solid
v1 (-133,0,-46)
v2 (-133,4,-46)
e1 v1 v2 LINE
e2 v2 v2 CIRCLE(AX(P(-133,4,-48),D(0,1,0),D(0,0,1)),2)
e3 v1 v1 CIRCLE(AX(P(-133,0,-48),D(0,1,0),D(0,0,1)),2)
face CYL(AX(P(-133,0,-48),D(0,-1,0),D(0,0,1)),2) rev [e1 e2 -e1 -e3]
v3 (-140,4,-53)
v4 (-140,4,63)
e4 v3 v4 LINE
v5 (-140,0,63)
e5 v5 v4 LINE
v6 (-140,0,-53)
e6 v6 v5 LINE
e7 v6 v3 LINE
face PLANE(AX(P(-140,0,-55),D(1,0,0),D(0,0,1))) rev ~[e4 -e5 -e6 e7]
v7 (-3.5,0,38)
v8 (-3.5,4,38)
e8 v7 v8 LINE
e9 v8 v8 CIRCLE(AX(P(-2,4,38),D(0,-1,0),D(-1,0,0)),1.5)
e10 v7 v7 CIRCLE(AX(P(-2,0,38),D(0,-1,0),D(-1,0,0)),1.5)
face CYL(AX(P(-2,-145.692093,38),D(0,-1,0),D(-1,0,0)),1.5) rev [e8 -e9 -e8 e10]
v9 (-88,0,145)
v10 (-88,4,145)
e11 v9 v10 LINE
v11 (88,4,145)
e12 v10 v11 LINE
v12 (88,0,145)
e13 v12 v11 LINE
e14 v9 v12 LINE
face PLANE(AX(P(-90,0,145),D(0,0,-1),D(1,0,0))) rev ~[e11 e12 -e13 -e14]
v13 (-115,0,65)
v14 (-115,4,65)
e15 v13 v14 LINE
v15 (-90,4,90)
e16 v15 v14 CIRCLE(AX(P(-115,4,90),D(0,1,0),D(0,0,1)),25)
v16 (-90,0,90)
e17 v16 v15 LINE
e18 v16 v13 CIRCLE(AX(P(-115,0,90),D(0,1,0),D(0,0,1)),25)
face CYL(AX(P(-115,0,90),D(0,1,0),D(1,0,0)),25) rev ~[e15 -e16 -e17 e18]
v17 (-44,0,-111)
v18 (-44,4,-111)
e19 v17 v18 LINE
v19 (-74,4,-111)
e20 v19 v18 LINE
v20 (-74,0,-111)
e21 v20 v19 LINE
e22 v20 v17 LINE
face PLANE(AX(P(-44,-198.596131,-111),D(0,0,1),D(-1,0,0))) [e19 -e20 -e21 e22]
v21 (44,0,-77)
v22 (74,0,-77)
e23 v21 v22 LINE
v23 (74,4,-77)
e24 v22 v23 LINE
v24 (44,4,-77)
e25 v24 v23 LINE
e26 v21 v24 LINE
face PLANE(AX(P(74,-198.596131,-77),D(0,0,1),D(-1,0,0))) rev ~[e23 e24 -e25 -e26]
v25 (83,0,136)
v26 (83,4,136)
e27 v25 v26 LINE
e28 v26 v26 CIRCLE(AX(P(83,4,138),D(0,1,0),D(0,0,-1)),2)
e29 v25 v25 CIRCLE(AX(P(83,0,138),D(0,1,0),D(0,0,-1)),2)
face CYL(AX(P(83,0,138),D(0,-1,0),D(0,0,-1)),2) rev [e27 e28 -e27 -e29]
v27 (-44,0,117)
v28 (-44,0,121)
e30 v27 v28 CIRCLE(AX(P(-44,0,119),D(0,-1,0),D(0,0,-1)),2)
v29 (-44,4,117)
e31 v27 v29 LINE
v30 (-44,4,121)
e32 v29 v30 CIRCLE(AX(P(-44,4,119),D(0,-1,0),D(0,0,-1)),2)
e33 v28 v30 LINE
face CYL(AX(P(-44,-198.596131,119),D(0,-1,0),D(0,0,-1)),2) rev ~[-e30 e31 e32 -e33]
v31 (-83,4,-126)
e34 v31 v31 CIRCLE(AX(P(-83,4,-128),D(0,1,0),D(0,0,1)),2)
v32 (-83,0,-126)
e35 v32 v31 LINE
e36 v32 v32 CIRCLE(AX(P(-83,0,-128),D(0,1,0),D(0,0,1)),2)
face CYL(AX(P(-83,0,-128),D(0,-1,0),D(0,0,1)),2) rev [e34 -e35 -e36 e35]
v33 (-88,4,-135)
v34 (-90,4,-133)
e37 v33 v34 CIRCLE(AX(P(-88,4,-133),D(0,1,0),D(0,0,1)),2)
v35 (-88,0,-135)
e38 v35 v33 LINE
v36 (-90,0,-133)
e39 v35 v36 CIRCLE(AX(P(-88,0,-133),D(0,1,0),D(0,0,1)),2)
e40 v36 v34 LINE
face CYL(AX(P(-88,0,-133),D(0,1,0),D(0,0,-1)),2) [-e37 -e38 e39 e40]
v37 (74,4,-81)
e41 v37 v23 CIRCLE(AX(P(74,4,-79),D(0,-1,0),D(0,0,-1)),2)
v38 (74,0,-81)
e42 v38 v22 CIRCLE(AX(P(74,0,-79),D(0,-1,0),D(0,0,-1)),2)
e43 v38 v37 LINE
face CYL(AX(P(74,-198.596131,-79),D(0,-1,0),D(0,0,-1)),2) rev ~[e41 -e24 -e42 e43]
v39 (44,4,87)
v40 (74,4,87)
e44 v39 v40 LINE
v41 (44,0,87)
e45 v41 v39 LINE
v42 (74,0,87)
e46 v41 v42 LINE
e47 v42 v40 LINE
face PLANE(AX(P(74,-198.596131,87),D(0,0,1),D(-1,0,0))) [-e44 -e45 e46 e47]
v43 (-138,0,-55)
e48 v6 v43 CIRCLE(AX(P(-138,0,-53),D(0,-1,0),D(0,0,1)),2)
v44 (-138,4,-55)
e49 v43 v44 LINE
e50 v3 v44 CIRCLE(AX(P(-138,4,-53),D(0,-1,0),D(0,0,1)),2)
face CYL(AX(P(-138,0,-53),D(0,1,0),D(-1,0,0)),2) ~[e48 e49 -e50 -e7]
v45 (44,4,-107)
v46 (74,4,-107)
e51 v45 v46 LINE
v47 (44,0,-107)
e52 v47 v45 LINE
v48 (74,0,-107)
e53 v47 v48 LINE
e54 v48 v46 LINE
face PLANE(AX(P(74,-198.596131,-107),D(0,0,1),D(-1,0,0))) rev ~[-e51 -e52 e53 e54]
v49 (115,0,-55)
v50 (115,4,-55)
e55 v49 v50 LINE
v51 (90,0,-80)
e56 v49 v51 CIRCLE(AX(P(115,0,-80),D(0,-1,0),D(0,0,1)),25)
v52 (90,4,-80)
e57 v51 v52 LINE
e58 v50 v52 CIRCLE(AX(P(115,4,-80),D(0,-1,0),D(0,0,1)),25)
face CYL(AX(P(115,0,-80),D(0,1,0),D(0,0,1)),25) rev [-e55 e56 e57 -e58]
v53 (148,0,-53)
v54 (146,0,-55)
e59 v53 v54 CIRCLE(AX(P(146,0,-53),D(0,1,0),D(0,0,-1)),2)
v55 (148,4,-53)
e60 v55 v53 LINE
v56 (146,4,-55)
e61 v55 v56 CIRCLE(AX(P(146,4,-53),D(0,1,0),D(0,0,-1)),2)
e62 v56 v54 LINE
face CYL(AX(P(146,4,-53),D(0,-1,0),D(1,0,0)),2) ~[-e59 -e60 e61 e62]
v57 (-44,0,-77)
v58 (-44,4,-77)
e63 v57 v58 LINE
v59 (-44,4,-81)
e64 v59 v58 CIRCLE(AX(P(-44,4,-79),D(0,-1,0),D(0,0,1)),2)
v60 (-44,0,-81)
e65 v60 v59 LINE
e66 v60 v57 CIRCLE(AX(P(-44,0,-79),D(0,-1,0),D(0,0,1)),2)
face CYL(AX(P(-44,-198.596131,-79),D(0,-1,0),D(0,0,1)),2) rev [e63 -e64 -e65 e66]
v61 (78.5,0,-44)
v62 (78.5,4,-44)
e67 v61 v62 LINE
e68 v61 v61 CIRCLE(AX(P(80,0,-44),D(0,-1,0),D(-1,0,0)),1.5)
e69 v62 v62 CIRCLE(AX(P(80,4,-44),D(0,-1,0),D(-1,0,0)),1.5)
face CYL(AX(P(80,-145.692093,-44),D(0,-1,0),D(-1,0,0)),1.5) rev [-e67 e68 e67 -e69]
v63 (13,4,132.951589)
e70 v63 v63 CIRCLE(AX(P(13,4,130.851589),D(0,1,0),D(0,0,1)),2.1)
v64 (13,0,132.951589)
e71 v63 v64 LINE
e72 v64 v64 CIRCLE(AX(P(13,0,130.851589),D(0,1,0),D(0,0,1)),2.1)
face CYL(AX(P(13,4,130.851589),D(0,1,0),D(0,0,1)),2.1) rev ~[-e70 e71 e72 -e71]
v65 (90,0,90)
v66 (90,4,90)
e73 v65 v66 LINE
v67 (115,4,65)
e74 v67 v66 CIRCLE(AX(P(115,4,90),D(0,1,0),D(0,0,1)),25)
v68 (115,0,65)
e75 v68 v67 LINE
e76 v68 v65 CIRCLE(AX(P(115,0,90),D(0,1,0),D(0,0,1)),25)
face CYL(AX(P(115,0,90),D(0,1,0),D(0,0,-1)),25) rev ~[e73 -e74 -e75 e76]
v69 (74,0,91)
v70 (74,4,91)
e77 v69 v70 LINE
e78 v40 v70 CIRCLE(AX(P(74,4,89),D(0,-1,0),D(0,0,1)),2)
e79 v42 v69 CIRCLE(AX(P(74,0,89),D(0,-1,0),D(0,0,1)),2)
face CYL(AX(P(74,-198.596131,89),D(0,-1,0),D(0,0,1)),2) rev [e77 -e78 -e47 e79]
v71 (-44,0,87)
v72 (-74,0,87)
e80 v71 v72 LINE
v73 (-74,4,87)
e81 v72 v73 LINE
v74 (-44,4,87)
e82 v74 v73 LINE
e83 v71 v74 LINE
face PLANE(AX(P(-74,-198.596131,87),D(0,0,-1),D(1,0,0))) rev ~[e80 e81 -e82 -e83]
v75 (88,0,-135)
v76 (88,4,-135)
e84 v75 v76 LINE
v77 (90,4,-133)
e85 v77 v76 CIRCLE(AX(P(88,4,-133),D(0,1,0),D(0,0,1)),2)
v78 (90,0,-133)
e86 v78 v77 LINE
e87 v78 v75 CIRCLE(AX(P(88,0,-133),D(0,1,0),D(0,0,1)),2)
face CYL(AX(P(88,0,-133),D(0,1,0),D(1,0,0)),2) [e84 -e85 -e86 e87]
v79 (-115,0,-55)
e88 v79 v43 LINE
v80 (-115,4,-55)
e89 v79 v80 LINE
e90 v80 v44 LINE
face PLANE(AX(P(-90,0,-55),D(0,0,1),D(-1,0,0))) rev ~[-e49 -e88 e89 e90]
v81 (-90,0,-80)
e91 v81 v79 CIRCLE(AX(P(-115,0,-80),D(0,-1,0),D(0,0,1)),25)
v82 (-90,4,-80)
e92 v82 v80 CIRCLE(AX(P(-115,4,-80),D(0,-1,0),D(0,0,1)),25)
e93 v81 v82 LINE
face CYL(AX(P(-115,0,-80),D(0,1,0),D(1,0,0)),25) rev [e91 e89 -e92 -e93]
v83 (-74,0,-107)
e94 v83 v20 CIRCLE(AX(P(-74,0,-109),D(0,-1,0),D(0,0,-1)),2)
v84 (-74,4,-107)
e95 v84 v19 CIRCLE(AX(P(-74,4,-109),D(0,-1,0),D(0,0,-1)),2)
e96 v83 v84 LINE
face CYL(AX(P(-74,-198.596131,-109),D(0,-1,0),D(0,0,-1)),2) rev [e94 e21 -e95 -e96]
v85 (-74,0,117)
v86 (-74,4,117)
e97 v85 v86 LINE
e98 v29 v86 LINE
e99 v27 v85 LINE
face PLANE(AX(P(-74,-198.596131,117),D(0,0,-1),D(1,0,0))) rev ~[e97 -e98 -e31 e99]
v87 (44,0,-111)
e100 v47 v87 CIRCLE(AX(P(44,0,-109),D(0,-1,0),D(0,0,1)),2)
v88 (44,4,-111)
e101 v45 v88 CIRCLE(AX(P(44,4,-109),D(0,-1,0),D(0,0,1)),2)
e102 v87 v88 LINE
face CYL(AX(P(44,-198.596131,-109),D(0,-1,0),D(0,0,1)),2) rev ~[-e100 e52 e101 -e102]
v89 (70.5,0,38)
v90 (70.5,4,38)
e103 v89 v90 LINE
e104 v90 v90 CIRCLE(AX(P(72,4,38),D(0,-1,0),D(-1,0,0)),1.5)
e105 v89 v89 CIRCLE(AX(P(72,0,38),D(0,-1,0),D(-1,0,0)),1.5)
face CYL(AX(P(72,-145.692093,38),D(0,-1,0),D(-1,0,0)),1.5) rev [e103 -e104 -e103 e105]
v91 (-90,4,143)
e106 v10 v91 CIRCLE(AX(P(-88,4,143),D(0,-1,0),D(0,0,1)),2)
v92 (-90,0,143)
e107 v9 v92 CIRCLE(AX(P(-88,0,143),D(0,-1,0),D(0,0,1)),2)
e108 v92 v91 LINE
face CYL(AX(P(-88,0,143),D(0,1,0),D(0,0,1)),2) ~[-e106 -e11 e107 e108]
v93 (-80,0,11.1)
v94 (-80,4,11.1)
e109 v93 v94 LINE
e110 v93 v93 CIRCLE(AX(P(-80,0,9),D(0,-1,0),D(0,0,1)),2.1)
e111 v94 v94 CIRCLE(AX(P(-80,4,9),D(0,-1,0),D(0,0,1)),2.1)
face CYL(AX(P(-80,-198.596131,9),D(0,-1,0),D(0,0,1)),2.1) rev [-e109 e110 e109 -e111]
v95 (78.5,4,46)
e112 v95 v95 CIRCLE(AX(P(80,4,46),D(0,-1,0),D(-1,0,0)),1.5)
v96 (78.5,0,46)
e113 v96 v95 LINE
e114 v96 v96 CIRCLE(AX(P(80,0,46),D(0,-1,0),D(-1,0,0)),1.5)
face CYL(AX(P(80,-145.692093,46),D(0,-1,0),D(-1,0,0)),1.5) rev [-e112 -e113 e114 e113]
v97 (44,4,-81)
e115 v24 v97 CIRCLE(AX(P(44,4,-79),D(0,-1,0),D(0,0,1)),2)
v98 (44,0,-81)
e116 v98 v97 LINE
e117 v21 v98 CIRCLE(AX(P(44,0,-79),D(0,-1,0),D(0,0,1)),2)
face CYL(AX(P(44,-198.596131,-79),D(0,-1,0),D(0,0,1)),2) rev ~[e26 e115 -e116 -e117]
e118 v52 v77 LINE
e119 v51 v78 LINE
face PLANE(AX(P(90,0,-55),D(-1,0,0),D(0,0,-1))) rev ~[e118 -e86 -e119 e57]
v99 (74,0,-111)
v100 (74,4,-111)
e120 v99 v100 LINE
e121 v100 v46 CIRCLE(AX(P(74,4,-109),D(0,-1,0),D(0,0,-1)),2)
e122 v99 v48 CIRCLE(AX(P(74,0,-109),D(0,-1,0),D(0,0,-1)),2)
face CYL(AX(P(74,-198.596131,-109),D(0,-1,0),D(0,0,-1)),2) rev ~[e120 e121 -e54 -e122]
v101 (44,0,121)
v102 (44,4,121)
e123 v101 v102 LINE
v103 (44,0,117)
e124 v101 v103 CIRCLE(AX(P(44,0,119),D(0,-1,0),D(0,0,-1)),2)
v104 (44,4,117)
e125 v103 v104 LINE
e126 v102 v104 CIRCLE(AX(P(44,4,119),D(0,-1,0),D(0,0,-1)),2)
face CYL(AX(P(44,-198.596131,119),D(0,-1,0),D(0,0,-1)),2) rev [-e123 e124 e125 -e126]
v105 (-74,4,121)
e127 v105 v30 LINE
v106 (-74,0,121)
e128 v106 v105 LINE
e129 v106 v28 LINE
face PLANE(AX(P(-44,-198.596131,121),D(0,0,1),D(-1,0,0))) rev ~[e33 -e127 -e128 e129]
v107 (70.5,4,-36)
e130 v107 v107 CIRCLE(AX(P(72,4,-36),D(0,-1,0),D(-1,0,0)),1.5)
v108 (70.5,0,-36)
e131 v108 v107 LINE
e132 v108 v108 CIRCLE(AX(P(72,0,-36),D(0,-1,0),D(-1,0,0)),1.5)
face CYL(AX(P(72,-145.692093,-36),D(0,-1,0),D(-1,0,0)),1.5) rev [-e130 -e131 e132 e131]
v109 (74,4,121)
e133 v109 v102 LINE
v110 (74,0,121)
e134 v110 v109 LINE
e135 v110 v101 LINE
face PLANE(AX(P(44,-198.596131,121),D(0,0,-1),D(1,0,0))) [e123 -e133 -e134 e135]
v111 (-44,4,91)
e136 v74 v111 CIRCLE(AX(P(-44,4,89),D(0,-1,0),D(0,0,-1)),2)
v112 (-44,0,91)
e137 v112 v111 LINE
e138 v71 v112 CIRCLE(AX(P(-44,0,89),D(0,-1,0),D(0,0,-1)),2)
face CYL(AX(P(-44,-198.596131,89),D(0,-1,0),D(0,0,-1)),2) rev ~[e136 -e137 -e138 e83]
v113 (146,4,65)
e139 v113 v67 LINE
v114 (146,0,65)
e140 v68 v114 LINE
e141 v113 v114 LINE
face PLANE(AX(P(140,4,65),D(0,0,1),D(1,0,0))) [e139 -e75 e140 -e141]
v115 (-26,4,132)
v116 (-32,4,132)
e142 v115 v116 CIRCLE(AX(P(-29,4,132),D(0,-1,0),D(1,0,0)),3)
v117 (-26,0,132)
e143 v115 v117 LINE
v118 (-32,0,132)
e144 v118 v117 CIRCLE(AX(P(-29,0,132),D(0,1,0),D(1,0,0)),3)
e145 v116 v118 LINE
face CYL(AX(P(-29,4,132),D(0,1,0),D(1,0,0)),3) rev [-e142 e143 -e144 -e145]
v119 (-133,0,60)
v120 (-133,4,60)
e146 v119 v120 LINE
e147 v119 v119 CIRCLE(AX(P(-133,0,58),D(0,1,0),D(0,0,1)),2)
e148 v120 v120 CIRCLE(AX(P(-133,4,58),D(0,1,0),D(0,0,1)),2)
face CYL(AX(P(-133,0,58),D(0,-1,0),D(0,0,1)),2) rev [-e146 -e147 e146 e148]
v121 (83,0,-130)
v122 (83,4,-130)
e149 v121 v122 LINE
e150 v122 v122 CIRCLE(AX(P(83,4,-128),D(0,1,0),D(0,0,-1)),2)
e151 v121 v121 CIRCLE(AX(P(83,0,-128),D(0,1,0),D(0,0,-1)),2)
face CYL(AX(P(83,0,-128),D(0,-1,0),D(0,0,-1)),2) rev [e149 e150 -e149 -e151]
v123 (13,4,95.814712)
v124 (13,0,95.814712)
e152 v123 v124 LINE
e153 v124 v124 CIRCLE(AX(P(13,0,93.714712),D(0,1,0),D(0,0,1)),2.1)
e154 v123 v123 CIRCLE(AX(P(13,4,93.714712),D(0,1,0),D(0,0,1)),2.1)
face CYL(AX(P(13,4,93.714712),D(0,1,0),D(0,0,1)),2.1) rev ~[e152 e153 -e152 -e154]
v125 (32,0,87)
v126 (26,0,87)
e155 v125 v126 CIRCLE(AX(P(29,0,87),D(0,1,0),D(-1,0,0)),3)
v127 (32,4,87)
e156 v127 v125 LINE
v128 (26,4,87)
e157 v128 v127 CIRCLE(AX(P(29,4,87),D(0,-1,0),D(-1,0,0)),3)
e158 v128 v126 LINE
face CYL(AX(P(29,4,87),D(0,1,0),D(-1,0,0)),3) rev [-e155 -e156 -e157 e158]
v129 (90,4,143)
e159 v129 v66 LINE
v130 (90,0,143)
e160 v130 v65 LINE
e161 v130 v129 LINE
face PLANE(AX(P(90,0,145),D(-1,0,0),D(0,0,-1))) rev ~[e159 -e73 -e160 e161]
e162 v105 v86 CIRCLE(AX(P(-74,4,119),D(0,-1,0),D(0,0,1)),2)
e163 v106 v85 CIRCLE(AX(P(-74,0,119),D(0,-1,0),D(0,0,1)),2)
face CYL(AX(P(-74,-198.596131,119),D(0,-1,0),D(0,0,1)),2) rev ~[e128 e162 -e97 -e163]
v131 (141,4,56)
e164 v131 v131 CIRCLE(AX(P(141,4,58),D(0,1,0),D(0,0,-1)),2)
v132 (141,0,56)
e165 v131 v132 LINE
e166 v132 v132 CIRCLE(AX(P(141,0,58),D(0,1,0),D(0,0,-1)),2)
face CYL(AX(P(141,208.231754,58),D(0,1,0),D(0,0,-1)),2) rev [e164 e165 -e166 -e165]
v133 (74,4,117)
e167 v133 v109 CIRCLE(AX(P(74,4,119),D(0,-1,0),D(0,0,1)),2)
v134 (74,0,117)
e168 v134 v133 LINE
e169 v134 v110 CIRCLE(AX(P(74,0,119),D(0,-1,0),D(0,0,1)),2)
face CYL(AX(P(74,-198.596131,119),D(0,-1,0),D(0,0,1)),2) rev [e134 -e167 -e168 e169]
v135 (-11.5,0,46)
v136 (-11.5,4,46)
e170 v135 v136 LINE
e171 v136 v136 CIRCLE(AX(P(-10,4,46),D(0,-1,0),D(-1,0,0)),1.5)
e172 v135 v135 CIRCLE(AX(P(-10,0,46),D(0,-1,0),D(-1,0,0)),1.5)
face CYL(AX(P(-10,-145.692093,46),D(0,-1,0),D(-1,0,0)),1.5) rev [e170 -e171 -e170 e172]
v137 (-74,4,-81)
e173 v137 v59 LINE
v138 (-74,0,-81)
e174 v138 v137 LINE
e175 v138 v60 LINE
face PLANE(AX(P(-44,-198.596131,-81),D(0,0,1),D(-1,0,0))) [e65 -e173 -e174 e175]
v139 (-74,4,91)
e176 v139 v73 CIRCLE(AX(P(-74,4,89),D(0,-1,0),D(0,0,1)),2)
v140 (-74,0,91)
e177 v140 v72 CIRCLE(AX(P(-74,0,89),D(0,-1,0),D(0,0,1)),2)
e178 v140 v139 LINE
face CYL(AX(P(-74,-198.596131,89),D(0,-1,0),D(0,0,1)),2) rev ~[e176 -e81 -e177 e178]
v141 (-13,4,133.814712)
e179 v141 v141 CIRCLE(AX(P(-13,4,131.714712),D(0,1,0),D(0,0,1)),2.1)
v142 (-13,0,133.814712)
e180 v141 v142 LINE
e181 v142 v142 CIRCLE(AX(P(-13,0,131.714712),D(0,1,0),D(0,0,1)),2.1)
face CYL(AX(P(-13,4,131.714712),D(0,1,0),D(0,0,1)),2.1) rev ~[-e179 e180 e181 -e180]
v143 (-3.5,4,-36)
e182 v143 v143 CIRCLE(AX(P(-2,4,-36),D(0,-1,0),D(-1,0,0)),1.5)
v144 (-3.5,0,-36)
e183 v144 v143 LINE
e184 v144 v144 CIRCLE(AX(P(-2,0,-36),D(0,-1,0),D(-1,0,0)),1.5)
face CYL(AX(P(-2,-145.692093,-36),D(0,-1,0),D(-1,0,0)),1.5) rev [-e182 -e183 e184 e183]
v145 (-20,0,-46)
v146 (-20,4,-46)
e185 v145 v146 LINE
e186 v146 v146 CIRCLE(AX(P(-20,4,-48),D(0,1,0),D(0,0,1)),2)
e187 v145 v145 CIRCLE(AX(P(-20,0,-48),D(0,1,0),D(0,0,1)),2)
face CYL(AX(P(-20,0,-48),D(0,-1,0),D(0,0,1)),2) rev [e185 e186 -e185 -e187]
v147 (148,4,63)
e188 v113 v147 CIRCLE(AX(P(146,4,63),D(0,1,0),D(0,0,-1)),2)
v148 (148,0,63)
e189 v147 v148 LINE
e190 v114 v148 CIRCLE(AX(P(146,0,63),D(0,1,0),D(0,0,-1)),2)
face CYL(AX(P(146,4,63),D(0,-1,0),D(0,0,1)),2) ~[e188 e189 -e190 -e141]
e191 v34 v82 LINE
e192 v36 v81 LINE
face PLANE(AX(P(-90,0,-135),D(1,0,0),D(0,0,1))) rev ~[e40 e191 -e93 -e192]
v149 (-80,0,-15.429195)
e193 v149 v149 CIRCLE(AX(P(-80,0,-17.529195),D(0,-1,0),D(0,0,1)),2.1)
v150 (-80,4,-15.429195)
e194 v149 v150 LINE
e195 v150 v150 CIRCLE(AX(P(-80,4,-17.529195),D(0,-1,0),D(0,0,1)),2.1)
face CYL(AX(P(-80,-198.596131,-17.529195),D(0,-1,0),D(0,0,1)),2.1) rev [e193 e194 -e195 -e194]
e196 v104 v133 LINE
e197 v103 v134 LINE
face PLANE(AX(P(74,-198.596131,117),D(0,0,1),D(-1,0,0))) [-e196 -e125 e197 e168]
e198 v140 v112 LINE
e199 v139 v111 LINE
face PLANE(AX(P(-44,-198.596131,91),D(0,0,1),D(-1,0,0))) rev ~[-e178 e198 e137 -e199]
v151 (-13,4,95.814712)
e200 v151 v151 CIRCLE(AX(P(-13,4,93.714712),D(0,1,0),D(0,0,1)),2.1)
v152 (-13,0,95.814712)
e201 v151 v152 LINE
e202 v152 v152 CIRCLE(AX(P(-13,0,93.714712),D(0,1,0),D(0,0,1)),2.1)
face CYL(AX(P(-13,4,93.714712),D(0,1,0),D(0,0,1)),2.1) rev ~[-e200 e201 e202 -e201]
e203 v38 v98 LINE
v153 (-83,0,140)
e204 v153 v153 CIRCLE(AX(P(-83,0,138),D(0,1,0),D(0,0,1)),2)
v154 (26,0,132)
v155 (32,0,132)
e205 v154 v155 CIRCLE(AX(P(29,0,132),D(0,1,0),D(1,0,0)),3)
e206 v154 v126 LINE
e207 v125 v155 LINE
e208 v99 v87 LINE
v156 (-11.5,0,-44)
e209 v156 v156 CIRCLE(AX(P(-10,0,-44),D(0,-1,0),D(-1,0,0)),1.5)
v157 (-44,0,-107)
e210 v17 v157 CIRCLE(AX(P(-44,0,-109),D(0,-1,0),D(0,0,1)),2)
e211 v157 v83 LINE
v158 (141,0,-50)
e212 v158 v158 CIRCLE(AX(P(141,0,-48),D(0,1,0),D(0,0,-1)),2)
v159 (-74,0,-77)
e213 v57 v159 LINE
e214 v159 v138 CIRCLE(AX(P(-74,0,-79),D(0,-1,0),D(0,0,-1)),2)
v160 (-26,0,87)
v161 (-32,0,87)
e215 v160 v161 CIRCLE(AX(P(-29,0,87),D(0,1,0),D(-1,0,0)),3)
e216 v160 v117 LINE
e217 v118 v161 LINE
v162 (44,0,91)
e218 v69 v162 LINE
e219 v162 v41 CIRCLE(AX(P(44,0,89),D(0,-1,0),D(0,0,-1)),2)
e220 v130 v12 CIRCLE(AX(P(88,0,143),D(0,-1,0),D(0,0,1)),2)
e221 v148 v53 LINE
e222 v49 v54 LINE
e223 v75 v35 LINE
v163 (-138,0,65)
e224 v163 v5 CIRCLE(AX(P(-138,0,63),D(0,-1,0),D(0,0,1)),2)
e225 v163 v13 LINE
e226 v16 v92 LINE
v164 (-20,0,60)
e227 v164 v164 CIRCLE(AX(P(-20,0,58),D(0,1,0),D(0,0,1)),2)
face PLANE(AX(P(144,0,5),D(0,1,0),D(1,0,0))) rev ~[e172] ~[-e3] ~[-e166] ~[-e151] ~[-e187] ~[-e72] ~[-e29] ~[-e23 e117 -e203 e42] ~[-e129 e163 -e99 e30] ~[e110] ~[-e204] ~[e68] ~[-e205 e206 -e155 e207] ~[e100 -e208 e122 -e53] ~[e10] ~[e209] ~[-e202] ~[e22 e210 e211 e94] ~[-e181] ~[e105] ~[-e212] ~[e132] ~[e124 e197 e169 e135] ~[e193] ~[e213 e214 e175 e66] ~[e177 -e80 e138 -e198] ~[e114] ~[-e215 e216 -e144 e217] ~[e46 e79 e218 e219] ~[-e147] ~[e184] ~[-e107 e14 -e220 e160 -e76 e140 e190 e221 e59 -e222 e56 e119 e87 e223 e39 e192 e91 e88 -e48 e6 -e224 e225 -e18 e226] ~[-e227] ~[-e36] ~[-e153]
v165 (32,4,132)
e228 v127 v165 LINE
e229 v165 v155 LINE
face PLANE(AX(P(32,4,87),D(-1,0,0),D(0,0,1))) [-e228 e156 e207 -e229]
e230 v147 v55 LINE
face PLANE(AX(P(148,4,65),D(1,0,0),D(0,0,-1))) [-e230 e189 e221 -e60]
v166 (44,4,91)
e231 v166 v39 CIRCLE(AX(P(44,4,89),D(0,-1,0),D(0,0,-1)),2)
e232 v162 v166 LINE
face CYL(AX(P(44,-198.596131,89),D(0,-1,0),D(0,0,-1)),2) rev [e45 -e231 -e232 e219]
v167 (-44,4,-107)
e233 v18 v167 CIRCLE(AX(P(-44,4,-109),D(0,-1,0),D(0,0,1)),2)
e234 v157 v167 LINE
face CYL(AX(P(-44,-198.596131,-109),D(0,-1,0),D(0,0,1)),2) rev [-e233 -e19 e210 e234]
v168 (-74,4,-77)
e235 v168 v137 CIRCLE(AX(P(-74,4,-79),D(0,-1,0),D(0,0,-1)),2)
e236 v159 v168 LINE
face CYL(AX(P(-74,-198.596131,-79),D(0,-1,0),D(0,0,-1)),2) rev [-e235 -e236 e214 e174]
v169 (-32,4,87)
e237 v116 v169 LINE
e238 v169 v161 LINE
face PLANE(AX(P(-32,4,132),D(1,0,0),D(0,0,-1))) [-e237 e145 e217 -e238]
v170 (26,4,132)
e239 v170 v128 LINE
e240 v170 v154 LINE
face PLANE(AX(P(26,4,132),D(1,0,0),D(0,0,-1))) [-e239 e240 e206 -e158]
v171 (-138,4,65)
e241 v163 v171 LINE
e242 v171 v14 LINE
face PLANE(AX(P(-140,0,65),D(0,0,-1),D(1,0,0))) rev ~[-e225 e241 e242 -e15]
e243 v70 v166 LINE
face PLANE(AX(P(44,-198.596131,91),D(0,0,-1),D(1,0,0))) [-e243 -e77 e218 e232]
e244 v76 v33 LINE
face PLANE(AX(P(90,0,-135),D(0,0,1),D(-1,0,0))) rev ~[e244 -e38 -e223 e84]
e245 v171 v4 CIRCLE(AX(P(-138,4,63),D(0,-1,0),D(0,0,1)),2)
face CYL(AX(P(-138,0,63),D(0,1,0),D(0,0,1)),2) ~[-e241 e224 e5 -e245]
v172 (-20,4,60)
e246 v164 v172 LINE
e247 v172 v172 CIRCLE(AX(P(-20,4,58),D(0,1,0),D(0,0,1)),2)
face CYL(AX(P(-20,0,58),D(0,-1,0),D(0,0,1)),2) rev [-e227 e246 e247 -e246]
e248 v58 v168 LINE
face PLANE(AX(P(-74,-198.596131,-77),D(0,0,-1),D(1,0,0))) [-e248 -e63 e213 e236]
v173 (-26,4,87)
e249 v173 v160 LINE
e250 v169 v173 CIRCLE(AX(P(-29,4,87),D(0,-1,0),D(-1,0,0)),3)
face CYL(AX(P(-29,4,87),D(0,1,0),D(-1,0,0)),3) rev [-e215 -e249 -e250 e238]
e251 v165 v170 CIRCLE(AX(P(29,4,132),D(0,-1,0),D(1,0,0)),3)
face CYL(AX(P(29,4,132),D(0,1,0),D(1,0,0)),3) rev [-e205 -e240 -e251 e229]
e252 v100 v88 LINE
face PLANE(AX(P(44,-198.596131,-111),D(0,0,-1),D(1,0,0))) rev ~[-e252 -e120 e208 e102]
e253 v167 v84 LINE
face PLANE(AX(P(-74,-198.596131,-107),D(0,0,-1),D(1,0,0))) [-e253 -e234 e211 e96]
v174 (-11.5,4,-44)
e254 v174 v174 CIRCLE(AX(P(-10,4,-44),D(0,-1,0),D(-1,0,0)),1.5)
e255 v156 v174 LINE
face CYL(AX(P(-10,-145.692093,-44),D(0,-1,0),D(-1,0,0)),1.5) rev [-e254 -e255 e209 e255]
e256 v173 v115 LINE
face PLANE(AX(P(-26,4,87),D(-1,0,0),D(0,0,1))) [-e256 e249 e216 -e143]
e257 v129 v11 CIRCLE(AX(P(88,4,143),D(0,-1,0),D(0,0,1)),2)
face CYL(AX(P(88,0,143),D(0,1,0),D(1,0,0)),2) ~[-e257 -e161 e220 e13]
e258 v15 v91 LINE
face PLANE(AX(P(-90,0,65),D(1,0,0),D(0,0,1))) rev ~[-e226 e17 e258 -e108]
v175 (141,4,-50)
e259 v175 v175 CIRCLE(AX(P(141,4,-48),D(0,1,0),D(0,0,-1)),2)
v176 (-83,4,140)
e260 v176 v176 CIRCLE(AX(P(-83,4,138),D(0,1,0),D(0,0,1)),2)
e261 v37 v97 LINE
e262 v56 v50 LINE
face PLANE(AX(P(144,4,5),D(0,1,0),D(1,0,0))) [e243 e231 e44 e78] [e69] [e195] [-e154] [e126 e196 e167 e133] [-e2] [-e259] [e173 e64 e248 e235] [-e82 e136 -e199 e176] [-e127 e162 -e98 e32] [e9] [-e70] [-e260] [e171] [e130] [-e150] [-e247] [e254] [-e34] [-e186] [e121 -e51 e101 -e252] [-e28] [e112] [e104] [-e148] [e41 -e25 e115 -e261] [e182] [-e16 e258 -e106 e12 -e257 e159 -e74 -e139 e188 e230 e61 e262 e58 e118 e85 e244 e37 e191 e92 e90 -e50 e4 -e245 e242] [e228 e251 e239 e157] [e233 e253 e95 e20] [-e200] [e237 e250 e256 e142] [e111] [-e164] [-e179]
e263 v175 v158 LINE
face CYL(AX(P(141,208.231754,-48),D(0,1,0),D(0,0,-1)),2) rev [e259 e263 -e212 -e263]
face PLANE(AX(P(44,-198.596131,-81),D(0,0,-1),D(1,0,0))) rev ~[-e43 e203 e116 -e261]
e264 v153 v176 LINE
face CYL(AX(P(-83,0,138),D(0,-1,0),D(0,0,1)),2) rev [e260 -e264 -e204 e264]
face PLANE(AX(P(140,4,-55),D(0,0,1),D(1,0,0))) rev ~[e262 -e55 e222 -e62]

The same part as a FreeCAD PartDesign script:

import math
import FreeCAD as App
import Part
import Sketcher
from FreeCAD import Vector


def edges_at(feature, points):
    """Names of the edges that pass closest to the given points."""
    edges = feature.Shape.Edges
    near = lambda p: min(range(len(edges)), key=lambda i: edges[i].distToShape(Part.Vertex(*p))[0])
    return sorted({f"Edge{near(p) + 1}" for p in points})


def add_polygon(sketch, points):
    """Adds a closed chain of lines whose ends are joined by coincident constraints."""
    first, n = sketch.GeometryCount, len(points)
    for a, b in zip(points, points[1:] + points[:1]):
        sketch.addGeometry(Part.LineSegment(App.Vector(*a, 0), App.Vector(*b, 0)), False)
    for i in range(n):
        sketch.addConstraint(Sketcher.Constraint("Coincident", first + i, 2, first + (i + 1) % n, 1))

doc = App.newDocument("Part")
body = doc.addObject("PartDesign::Body", "Body")

# Sketch on XZ plane
sketch1 = doc.addObject("Sketcher::SketchObject", "Sketch")
body.addObject(sketch1)
sketch1.AttachmentSupport = (doc.XZ_Plane, [""])
sketch1.MapMode = "FlatFace"
add_polygon(sketch1, [(-90, 145), (90, 145), (90, 65), (140, 65), (140, -55), (90, -55), (90, -135), (-90, -135), (-90, -55), (-140, -55), (-140, 65), (-90, 65)])  # lines 0-11
sketch1.addGeometry(Part.Circle(Vector(-83, 138, 0), Vector(0, 0, 1), 2), False)  # 12
sketch1.addGeometry(Part.Circle(Vector(-133, 58, 0), Vector(0, 0, 1), 2), False)  # 13
sketch1.addGeometry(Part.Circle(Vector(83, 138, 0), Vector(0, 0, 1), 2), False)  # 14
sketch1.addGeometry(Part.Circle(Vector(-20, 58, 0), Vector(0, 0, 1), 2), False)  # 15
sketch1.addGeometry(Part.Circle(Vector(-133, -48, 0), Vector(0, 0, 1), 2), False)  # 16
sketch1.addGeometry(Part.Circle(Vector(-83, -128, 0), Vector(0, 0, 1), 2), False)  # 17
sketch1.addGeometry(Part.Circle(Vector(-20, -48, 0), Vector(0, 0, 1), 2), False)  # 18
sketch1.addGeometry(Part.Circle(Vector(83, -128, 0), Vector(0, 0, 1), 2), False)  # 19
sketch1.addConstraint([
    Sketcher.Constraint("Horizontal", 0),
    Sketcher.Constraint("Vertical", 1),
    Sketcher.Constraint("Horizontal", 2),
    Sketcher.Constraint("Vertical", 3),
    Sketcher.Constraint("Horizontal", 4),
    Sketcher.Constraint("Vertical", 5),
    Sketcher.Constraint("Horizontal", 6),
    Sketcher.Constraint("Vertical", 7),
    Sketcher.Constraint("Horizontal", 8),
    Sketcher.Constraint("Vertical", 9),
    Sketcher.Constraint("Horizontal", 10),
    Sketcher.Constraint("Vertical", 11),
    Sketcher.Constraint("Equal", 12, 13),
    Sketcher.Constraint("Equal", 13, 14),
    Sketcher.Constraint("Equal", 14, 15),
    Sketcher.Constraint("Equal", 15, 16),
    Sketcher.Constraint("Equal", 16, 17),
    Sketcher.Constraint("Equal", 17, 18),
    Sketcher.Constraint("Equal", 18, 19),
    Sketcher.Constraint("Symmetric", 12, 3, 14, 3, -2),
    Sketcher.Constraint("Symmetric", 17, 3, 19, 3, -2),
    Sketcher.Constraint("Symmetric", 4, 2, 7, 2, -2),
    Sketcher.Constraint("Symmetric", 2, 2, 9, 2, -2),
    Sketcher.Constraint("Horizontal", 13, 3, 15, 3),
    Sketcher.Constraint("Horizontal", 16, 3, 18, 3),
    Sketcher.Constraint("Vertical", 13, 3, 16, 3),
    Sketcher.Constraint("Vertical", 12, 3, 17, 3),
    Sketcher.Constraint("Vertical", 15, 3, 18, 3),
    Sketcher.Constraint("Vertical", 1, 2, 4, 2),
    Sketcher.Constraint("Vertical", 7, 2, 10, 2),
    Sketcher.Constraint("Equal", 1, 5),
    Sketcher.Constraint("Diameter", 12, 4.0),
    Sketcher.Constraint("DistanceX", 0, 1, 0, 2, 180.0),
    Sketcher.Constraint("DistanceX", 2, 1, 2, 2, 50.0),
    Sketcher.Constraint("DistanceY", 1, 2, 1, 1, 80.0),
    Sketcher.Constraint("DistanceY", 3, 2, 3, 1, 120.0),
    Sketcher.Constraint("DistanceX", 12, 3, -1, 1, 83.0),
    Sketcher.Constraint("DistanceY", -1, 1, 12, 3, 138.0),
    Sketcher.Constraint("DistanceX", 13, 3, -1, 1, 133.0),
    Sketcher.Constraint("DistanceY", -1, 1, 13, 3, 58.0),
    Sketcher.Constraint("DistanceX", 15, 3, -1, 1, 20.0),
    Sketcher.Constraint("DistanceY", 16, 3, -1, 1, 48.0),
    Sketcher.Constraint("DistanceY", 17, 3, -1, 1, 128.0),
    Sketcher.Constraint("DistanceY", -1, 1, 0, 2, 145.0),
])
pad1 = doc.addObject("PartDesign::Pad", "Pad")
body.addObject(pad1)
pad1.Profile = sketch1
pad1.Length = 4
pad1.Reversed = True

# Sketch on XZ plane
sketch2 = doc.addObject("Sketcher::SketchObject", "Sketch001")
body.addObject(sketch2)
sketch2.AttachmentSupport = (doc.XZ_Plane, [""])
sketch2.MapMode = "FlatFace"
sketch2.AttachmentOffset = App.Placement(Vector(0, 0, -4), App.Rotation())
sketch2.addGeometry([
    Part.LineSegment(Vector(-44, 117, 0), Vector(-74, 117, 0)),  # 0
    Part.ArcOfCircle(Part.Circle(Vector(-74, 119, 0), Vector(0, 0, 1), 2), math.radians(90), math.radians(270)),  # 1
    Part.LineSegment(Vector(-74, 121, 0), Vector(-44, 121, 0)),  # 2
    Part.ArcOfCircle(Part.Circle(Vector(-44, 119, 0), Vector(0, 0, 1), 2), math.radians(-90), math.radians(90)),  # 3
    Part.LineSegment(Vector(-44, 87, 0), Vector(-74, 87, 0)),  # 4
    Part.ArcOfCircle(Part.Circle(Vector(-74, 89, 0), Vector(0, 0, 1), 2), math.radians(90), math.radians(270)),  # 5
    Part.LineSegment(Vector(-74, 91, 0), Vector(-44, 91, 0)),  # 6
    Part.ArcOfCircle(Part.Circle(Vector(-44, 89, 0), Vector(0, 0, 1), 2), math.radians(-90), math.radians(90)),  # 7
    Part.LineSegment(Vector(74, 87, 0), Vector(44, 87, 0)),  # 8
    Part.ArcOfCircle(Part.Circle(Vector(44, 89, 0), Vector(0, 0, 1), 2), math.radians(90), math.radians(270)),  # 9
    Part.LineSegment(Vector(44, 91, 0), Vector(74, 91, 0)),  # 10
    Part.ArcOfCircle(Part.Circle(Vector(74, 89, 0), Vector(0, 0, 1), 2), math.radians(-90), math.radians(90)),  # 11
    Part.LineSegment(Vector(74, 117, 0), Vector(44, 117, 0)),  # 12
    Part.ArcOfCircle(Part.Circle(Vector(44, 119, 0), Vector(0, 0, 1), 2), math.radians(90), math.radians(270)),  # 13
    Part.LineSegment(Vector(44, 121, 0), Vector(74, 121, 0)),  # 14
    Part.ArcOfCircle(Part.Circle(Vector(74, 119, 0), Vector(0, 0, 1), 2), math.radians(-90), math.radians(90)),  # 15
    Part.LineSegment(Vector(44, -107, 0), Vector(74, -107, 0)),  # 16
    Part.ArcOfCircle(Part.Circle(Vector(74, -109, 0), Vector(0, 0, 1), 2), math.radians(-90), math.radians(90)),  # 17
    Part.LineSegment(Vector(74, -111, 0), Vector(44, -111, 0)),  # 18
    Part.ArcOfCircle(Part.Circle(Vector(44, -109, 0), Vector(0, 0, 1), 2), math.radians(90), math.radians(270)),  # 19
    Part.LineSegment(Vector(44, -77, 0), Vector(74, -77, 0)),  # 20
    Part.ArcOfCircle(Part.Circle(Vector(74, -79, 0), Vector(0, 0, 1), 2), math.radians(-90), math.radians(90)),  # 21
    Part.LineSegment(Vector(74, -81, 0), Vector(44, -81, 0)),  # 22
    Part.ArcOfCircle(Part.Circle(Vector(44, -79, 0), Vector(0, 0, 1), 2), math.radians(90), math.radians(270)),  # 23
    Part.LineSegment(Vector(-74, -77, 0), Vector(-44, -77, 0)),  # 24
    Part.ArcOfCircle(Part.Circle(Vector(-44, -79, 0), Vector(0, 0, 1), 2), math.radians(-90), math.radians(90)),  # 25
    Part.LineSegment(Vector(-44, -81, 0), Vector(-74, -81, 0)),  # 26
    Part.ArcOfCircle(Part.Circle(Vector(-74, -79, 0), Vector(0, 0, 1), 2), math.radians(90), math.radians(270)),  # 27
    Part.LineSegment(Vector(-74, -107, 0), Vector(-44, -107, 0)),  # 28
    Part.ArcOfCircle(Part.Circle(Vector(-44, -109, 0), Vector(0, 0, 1), 2), math.radians(-90), math.radians(90)),  # 29
    Part.LineSegment(Vector(-44, -111, 0), Vector(-74, -111, 0)),  # 30
    Part.ArcOfCircle(Part.Circle(Vector(-74, -109, 0), Vector(0, 0, 1), 2), math.radians(90), math.radians(270)),  # 31
], False)
sketch2.addConstraint([
    Sketcher.Constraint("Tangent", 0, 2, 1, 2),
    Sketcher.Constraint("Tangent", 1, 1, 2, 1),
    Sketcher.Constraint("Tangent", 2, 2, 3, 2),
    Sketcher.Constraint("Tangent", 3, 1, 0, 1),
    Sketcher.Constraint("Tangent", 4, 2, 5, 2),
    Sketcher.Constraint("Tangent", 5, 1, 6, 1),
    Sketcher.Constraint("Tangent", 6, 2, 7, 2),
    Sketcher.Constraint("Tangent", 7, 1, 4, 1),
    Sketcher.Constraint("Tangent", 8, 2, 9, 2),
    Sketcher.Constraint("Tangent", 9, 1, 10, 1),
    Sketcher.Constraint("Tangent", 10, 2, 11, 2),
    Sketcher.Constraint("Tangent", 11, 1, 8, 1),
    Sketcher.Constraint("Tangent", 12, 2, 13, 2),
    Sketcher.Constraint("Tangent", 13, 1, 14, 1),
    Sketcher.Constraint("Tangent", 14, 2, 15, 2),
    Sketcher.Constraint("Tangent", 15, 1, 12, 1),
    Sketcher.Constraint("Tangent", 16, 2, 17, 2),
    Sketcher.Constraint("Tangent", 17, 1, 18, 1),
    Sketcher.Constraint("Tangent", 18, 2, 19, 2),
    Sketcher.Constraint("Tangent", 19, 1, 16, 1),
    Sketcher.Constraint("Tangent", 20, 2, 21, 2),
    Sketcher.Constraint("Tangent", 21, 1, 22, 1),
    Sketcher.Constraint("Tangent", 22, 2, 23, 2),
    Sketcher.Constraint("Tangent", 23, 1, 20, 1),
    Sketcher.Constraint("Tangent", 24, 2, 25, 2),
    Sketcher.Constraint("Tangent", 25, 1, 26, 1),
    Sketcher.Constraint("Tangent", 26, 2, 27, 2),
    Sketcher.Constraint("Tangent", 27, 1, 24, 1),
    Sketcher.Constraint("Tangent", 28, 2, 29, 2),
    Sketcher.Constraint("Tangent", 29, 1, 30, 1),
    Sketcher.Constraint("Tangent", 30, 2, 31, 2),
    Sketcher.Constraint("Tangent", 31, 1, 28, 1),
    Sketcher.Constraint("Horizontal", 0),
    Sketcher.Constraint("Horizontal", 2),
    Sketcher.Constraint("Horizontal", 4),
    Sketcher.Constraint("Horizontal", 6),
    Sketcher.Constraint("Horizontal", 8),
    Sketcher.Constraint("Horizontal", 10),
    Sketcher.Constraint("Horizontal", 12),
    Sketcher.Constraint("Horizontal", 14),
    Sketcher.Constraint("Horizontal", 16),
    Sketcher.Constraint("Horizontal", 18),
    Sketcher.Constraint("Horizontal", 20),
    Sketcher.Constraint("Horizontal", 22),
    Sketcher.Constraint("Horizontal", 24),
    Sketcher.Constraint("Horizontal", 26),
    Sketcher.Constraint("Horizontal", 28),
    Sketcher.Constraint("Horizontal", 30),
    Sketcher.Constraint("Equal", 3, 5),
    Sketcher.Constraint("Equal", 7, 9),
    Sketcher.Constraint("Equal", 11, 13),
    Sketcher.Constraint("Equal", 15, 17),
    Sketcher.Constraint("Equal", 19, 21),
    Sketcher.Constraint("Equal", 23, 25),
    Sketcher.Constraint("Equal", 27, 29),
    Sketcher.Constraint("Symmetric", 7, 3, 9, 3, -2),
    Sketcher.Constraint("Symmetric", 3, 3, 13, 3, -2),
    Sketcher.Constraint("Symmetric", 23, 3, 25, 3, -2),
    Sketcher.Constraint("Symmetric", 19, 3, 29, 3, -2),
    Sketcher.Constraint("Vertical", 1, 3, 5, 3),
    Sketcher.Constraint("Vertical", 3, 3, 7, 3),
    Sketcher.Constraint("Vertical", 11, 3, 15, 3),
    Sketcher.Constraint("Vertical", 15, 3, 17, 3),
    Sketcher.Constraint("Vertical", 13, 3, 19, 3),
    Sketcher.Constraint("Vertical", 17, 3, 21, 3),
    Sketcher.Constraint("Vertical", 19, 3, 23, 3),
    Sketcher.Constraint("Vertical", 5, 3, 27, 3),
    Sketcher.Constraint("Vertical", 27, 3, 31, 3),
    Sketcher.Constraint("Equal", 6, 8),
    Sketcher.Constraint("Radius", 1, 2.0),
    Sketcher.Constraint("DistanceX", 0, 2, 0, 1, 30.0),
    Sketcher.Constraint("DistanceX", 1, 3, -1, 1, 74.0),
    Sketcher.Constraint("DistanceY", -1, 1, 1, 3, 119.0),
    Sketcher.Constraint("DistanceY", -1, 1, 5, 3, 89.0),
    Sketcher.Constraint("DistanceY", 17, 3, -1, 1, 109.0),
    Sketcher.Constraint("DistanceY", 21, 3, -1, 1, 79.0),
])
pocket1 = doc.addObject("PartDesign::Pocket", "Pocket")
body.addObject(pocket1)
pocket1.Profile = sketch2
pocket1.Type = "ThroughAll"
pocket1.Midplane = True

# Sketch on XZ plane
sketch3 = doc.addObject("Sketcher::SketchObject", "Sketch002")
body.addObject(sketch3)
sketch3.AttachmentSupport = (doc.XZ_Plane, [""])
sketch3.MapMode = "FlatFace"
sketch3.AttachmentOffset = App.Placement(Vector(0, 0, -4), App.Rotation())
sketch3.addGeometry([
    Part.Circle(Vector(-80, -17.529195, 0), Vector(0, 0, 1), 2.1),
    Part.Circle(Vector(-80, 9, 0), Vector(0, 0, 1), 2.1),
], False)
sketch3.addConstraint([
    Sketcher.Constraint("Equal", 0, 1),
    Sketcher.Constraint("Vertical", 0, 3, 1, 3),
    Sketcher.Constraint("Diameter", 0, 4.2),
    Sketcher.Constraint("DistanceX", 0, 3, -1, 1, 80.0),
    Sketcher.Constraint("DistanceY", -1, 1, 1, 3, 9.0),
    Sketcher.Constraint("DistanceY", 0, 3, -1, 1, 17.529195),
])
pocket2 = doc.addObject("PartDesign::Pocket", "Pocket001")
body.addObject(pocket2)
pocket2.Profile = sketch3
pocket2.Type = "ThroughAll"
pocket2.Midplane = True

# Sketch on XZ plane
sketch4 = doc.addObject("Sketcher::SketchObject", "Sketch003")
body.addObject(sketch4)
sketch4.AttachmentSupport = (doc.XZ_Plane, [""])
sketch4.MapMode = "FlatFace"
sketch4.AttachmentOffset = App.Placement(Vector(0, 0, -4), App.Rotation())
add_polygon(sketch4, [(140, -55), (140, 65), (148, 65), (148, -55)])  # lines 0-3
sketch4.addConstraint([
    Sketcher.Constraint("Vertical", 0),
    Sketcher.Constraint("Horizontal", 1),
    Sketcher.Constraint("Vertical", 2),
    Sketcher.Constraint("Horizontal", 3),
    Sketcher.Constraint("DistanceX", 1, 1, 1, 2, 8.0),
    Sketcher.Constraint("DistanceY", 0, 1, 0, 2, 120.0),
    Sketcher.Constraint("DistanceX", -1, 1, 0, 2, 140.0),
    Sketcher.Constraint("DistanceY", -1, 1, 0, 2, 65.0),
])
pad2 = doc.addObject("PartDesign::Pad", "Pad001")
body.addObject(pad2)
pad2.Profile = sketch4
pad2.Length = 4

# Sketch on XZ plane
sketch5 = doc.addObject("Sketcher::SketchObject", "Sketch004")
body.addObject(sketch5)
sketch5.AttachmentSupport = (doc.XZ_Plane, [""])
sketch5.MapMode = "FlatFace"
sketch5.addGeometry([
    Part.Circle(Vector(141, 58, 0), Vector(0, 0, 1), 2),
    Part.Circle(Vector(141, -48, 0), Vector(0, 0, 1), 2),
], False)
sketch5.addConstraint([
    Sketcher.Constraint("Equal", 0, 1),
    Sketcher.Constraint("Vertical", 0, 3, 1, 3),
    Sketcher.Constraint("Diameter", 0, 4.0),
    Sketcher.Constraint("DistanceX", -1, 1, 0, 3, 141.0),
    Sketcher.Constraint("DistanceY", -1, 1, 0, 3, 58.0),
    Sketcher.Constraint("DistanceY", 1, 3, -1, 1, 48.0),
])
pocket3 = doc.addObject("PartDesign::Pocket", "Pocket002")
body.addObject(pocket3)
pocket3.Profile = sketch5
pocket3.Type = "ThroughAll"
pocket3.Midplane = True

# Sketch on XZ plane
sketch6 = doc.addObject("Sketcher::SketchObject", "Sketch005")
body.addObject(sketch6)
sketch6.AttachmentSupport = (doc.XZ_Plane, [""])
sketch6.MapMode = "FlatFace"
sketch6.AttachmentOffset = App.Placement(Vector(0, 0, -4), App.Rotation())
sketch6.addGeometry([
    Part.LineSegment(Vector(-26, 132, 0), Vector(-26, 87, 0)),  # 0
    Part.ArcOfCircle(Part.Circle(Vector(-29, 87, 0), Vector(0, 0, 1), 3), math.radians(180), math.radians(360)),  # 1
    Part.LineSegment(Vector(-32, 87, 0), Vector(-32, 132, 0)),  # 2
    Part.ArcOfCircle(Part.Circle(Vector(-29, 132, 0), Vector(0, 0, 1), 3), math.radians(0), math.radians(180)),  # 3
    Part.LineSegment(Vector(32, 132, 0), Vector(32, 87, 0)),  # 4
    Part.ArcOfCircle(Part.Circle(Vector(29, 87, 0), Vector(0, 0, 1), 3), math.radians(180), math.radians(360)),  # 5
    Part.LineSegment(Vector(26, 87, 0), Vector(26, 132, 0)),  # 6
    Part.ArcOfCircle(Part.Circle(Vector(29, 132, 0), Vector(0, 0, 1), 3), math.radians(0), math.radians(180)),  # 7
], False)
sketch6.addConstraint([
    Sketcher.Constraint("Tangent", 0, 2, 1, 2),
    Sketcher.Constraint("Tangent", 1, 1, 2, 1),
    Sketcher.Constraint("Tangent", 2, 2, 3, 2),
    Sketcher.Constraint("Tangent", 3, 1, 0, 1),
    Sketcher.Constraint("Tangent", 4, 2, 5, 2),
    Sketcher.Constraint("Tangent", 5, 1, 6, 1),
    Sketcher.Constraint("Tangent", 6, 2, 7, 2),
    Sketcher.Constraint("Tangent", 7, 1, 4, 1),
    Sketcher.Constraint("Vertical", 0),
    Sketcher.Constraint("Vertical", 2),
    Sketcher.Constraint("Vertical", 4),
    Sketcher.Constraint("Vertical", 6),
    Sketcher.Constraint("Equal", 3, 5),
    Sketcher.Constraint("Symmetric", 1, 3, 5, 3, -2),
    Sketcher.Constraint("Horizontal", 3, 3, 7, 3),
    Sketcher.Constraint("Radius", 1, 3.0),
    Sketcher.Constraint("DistanceY", 0, 2, 0, 1, 45.0),
    Sketcher.Constraint("DistanceX", 1, 3, -1, 1, 29.0),
    Sketcher.Constraint("DistanceY", -1, 1, 1, 3, 87.0),
])
pocket4 = doc.addObject("PartDesign::Pocket", "Pocket003")
body.addObject(pocket4)
pocket4.Profile = sketch6
pocket4.Type = "ThroughAll"
pocket4.Reversed = True

# Sketch on XZ plane
sketch7 = doc.addObject("Sketcher::SketchObject", "Sketch006")
body.addObject(sketch7)
sketch7.AttachmentSupport = (doc.XZ_Plane, [""])
sketch7.MapMode = "FlatFace"
sketch7.AttachmentOffset = App.Placement(Vector(0, 0, -76), App.Rotation())
sketch7.addGeometry([
    Part.Circle(Vector(72, 38, 0), Vector(0, 0, 1), 1.5),  # 0
    Part.Circle(Vector(-2, 38, 0), Vector(0, 0, 1), 1.5),  # 1
    Part.Circle(Vector(72, -36, 0), Vector(0, 0, 1), 1.5),  # 2
    Part.Circle(Vector(-2, -36, 0), Vector(0, 0, 1), 1.5),  # 3
    Part.Circle(Vector(80, 46, 0), Vector(0, 0, 1), 1.5),  # 4
    Part.Circle(Vector(-10, 46, 0), Vector(0, 0, 1), 1.5),  # 5
    Part.Circle(Vector(-10, -44, 0), Vector(0, 0, 1), 1.5),  # 6
    Part.Circle(Vector(80, -44, 0), Vector(0, 0, 1), 1.5),  # 7
], False)
sketch7.addConstraint([
    Sketcher.Constraint("Equal", 0, 1),
    Sketcher.Constraint("Equal", 1, 2),
    Sketcher.Constraint("Equal", 2, 3),
    Sketcher.Constraint("Equal", 3, 4),
    Sketcher.Constraint("Equal", 4, 5),
    Sketcher.Constraint("Equal", 5, 6),
    Sketcher.Constraint("Equal", 6, 7),
    Sketcher.Constraint("Horizontal", 0, 3, 1, 3),
    Sketcher.Constraint("Horizontal", 2, 3, 3, 3),
    Sketcher.Constraint("Horizontal", 4, 3, 5, 3),
    Sketcher.Constraint("Horizontal", 6, 3, 7, 3),
    Sketcher.Constraint("Vertical", 0, 3, 2, 3),
    Sketcher.Constraint("Vertical", 1, 3, 3, 3),
    Sketcher.Constraint("Vertical", 5, 3, 6, 3),
    Sketcher.Constraint("Vertical", 4, 3, 7, 3),
    Sketcher.Constraint("Diameter", 0, 3.0),
    Sketcher.Constraint("DistanceX", -1, 1, 0, 3, 72.0),
    Sketcher.Constraint("DistanceY", -1, 1, 0, 3, 38.0),
    Sketcher.Constraint("DistanceX", 1, 3, -1, 1, 2.0),
    Sketcher.Constraint("DistanceY", 2, 3, -1, 1, 36.0),
    Sketcher.Constraint("DistanceX", -1, 1, 4, 3, 80.0),
    Sketcher.Constraint("DistanceY", -1, 1, 4, 3, 46.0),
    Sketcher.Constraint("DistanceX", 5, 3, -1, 1, 10.0),
    Sketcher.Constraint("DistanceY", 6, 3, -1, 1, 44.0),
])
pocket5 = doc.addObject("PartDesign::Pocket", "Pocket004")
body.addObject(pocket5)
pocket5.Profile = sketch7
pocket5.Type = "ThroughAll"
pocket5.Midplane = True
doc.recompute()

fillet = doc.addObject("PartDesign::Fillet", "Fillet")
body.addObject(fillet)
fillet.Base = (pocket5, edges_at(pocket5, [
    (148, 2, -55),
    (148, 2, 65),
    (90, 2, 145),
    (-90, 2, 145),
    (-140, 2, 65),
    (-140, 2, -55),
    (-90, 2, -135),
    (90, 2, -135),
]))
fillet.Radius = 2
doc.recompute()

fillet2 = doc.addObject("PartDesign::Fillet", "Fillet001")
body.addObject(fillet2)
fillet2.Base = (fillet, edges_at(fillet, [
    (90, 2, -55),
    (90, 2, 65),
    (-90, 2, 65),
    (-90, 2, -55),
]))
fillet2.Radius = 25

# Sketch on XZ plane
sketch8 = doc.addObject("Sketcher::SketchObject", "Sketch007")
body.addObject(sketch8)
sketch8.AttachmentSupport = (doc.XZ_Plane, [""])
sketch8.MapMode = "FlatFace"
sketch8.AttachmentOffset = App.Placement(Vector(0, 0, -4), App.Rotation())
sketch8.addGeometry([
    Part.Circle(Vector(-13, 131.714712, 0), Vector(0, 0, 1), 2.1),
    Part.Circle(Vector(13, 130.851589, 0), Vector(0, 0, 1), 2.1),
    Part.Circle(Vector(13, 93.714712, 0), Vector(0, 0, 1), 2.1),
    Part.Circle(Vector(-13, 93.714712, 0), Vector(0, 0, 1), 2.1),
], False)
sketch8.addConstraint([
    Sketcher.Constraint("Equal", 0, 1),
    Sketcher.Constraint("Equal", 1, 2),
    Sketcher.Constraint("Equal", 2, 3),
    Sketcher.Constraint("Symmetric", 2, 3, 3, 3, -2),
    Sketcher.Constraint("Vertical", 1, 3, 2, 3),
    Sketcher.Constraint("Vertical", 0, 3, 3, 3),
    Sketcher.Constraint("Diameter", 0, 4.2),
    Sketcher.Constraint("DistanceX", 0, 3, -1, 1, 13.0),
    Sketcher.Constraint("DistanceY", 2, 3, 0, 3, 38.0),
    Sketcher.Constraint("DistanceY", -1, 1, 1, 3, 130.851589),
    Sketcher.Constraint("DistanceY", -1, 1, 0, 3, 131.714712),
])
pocket6 = doc.addObject("PartDesign::Pocket", "Pocket005")
body.addObject(pocket6)
pocket6.Profile = sketch8
pocket6.Length = 10
pocket6.Reversed = True

doc.recompute()
